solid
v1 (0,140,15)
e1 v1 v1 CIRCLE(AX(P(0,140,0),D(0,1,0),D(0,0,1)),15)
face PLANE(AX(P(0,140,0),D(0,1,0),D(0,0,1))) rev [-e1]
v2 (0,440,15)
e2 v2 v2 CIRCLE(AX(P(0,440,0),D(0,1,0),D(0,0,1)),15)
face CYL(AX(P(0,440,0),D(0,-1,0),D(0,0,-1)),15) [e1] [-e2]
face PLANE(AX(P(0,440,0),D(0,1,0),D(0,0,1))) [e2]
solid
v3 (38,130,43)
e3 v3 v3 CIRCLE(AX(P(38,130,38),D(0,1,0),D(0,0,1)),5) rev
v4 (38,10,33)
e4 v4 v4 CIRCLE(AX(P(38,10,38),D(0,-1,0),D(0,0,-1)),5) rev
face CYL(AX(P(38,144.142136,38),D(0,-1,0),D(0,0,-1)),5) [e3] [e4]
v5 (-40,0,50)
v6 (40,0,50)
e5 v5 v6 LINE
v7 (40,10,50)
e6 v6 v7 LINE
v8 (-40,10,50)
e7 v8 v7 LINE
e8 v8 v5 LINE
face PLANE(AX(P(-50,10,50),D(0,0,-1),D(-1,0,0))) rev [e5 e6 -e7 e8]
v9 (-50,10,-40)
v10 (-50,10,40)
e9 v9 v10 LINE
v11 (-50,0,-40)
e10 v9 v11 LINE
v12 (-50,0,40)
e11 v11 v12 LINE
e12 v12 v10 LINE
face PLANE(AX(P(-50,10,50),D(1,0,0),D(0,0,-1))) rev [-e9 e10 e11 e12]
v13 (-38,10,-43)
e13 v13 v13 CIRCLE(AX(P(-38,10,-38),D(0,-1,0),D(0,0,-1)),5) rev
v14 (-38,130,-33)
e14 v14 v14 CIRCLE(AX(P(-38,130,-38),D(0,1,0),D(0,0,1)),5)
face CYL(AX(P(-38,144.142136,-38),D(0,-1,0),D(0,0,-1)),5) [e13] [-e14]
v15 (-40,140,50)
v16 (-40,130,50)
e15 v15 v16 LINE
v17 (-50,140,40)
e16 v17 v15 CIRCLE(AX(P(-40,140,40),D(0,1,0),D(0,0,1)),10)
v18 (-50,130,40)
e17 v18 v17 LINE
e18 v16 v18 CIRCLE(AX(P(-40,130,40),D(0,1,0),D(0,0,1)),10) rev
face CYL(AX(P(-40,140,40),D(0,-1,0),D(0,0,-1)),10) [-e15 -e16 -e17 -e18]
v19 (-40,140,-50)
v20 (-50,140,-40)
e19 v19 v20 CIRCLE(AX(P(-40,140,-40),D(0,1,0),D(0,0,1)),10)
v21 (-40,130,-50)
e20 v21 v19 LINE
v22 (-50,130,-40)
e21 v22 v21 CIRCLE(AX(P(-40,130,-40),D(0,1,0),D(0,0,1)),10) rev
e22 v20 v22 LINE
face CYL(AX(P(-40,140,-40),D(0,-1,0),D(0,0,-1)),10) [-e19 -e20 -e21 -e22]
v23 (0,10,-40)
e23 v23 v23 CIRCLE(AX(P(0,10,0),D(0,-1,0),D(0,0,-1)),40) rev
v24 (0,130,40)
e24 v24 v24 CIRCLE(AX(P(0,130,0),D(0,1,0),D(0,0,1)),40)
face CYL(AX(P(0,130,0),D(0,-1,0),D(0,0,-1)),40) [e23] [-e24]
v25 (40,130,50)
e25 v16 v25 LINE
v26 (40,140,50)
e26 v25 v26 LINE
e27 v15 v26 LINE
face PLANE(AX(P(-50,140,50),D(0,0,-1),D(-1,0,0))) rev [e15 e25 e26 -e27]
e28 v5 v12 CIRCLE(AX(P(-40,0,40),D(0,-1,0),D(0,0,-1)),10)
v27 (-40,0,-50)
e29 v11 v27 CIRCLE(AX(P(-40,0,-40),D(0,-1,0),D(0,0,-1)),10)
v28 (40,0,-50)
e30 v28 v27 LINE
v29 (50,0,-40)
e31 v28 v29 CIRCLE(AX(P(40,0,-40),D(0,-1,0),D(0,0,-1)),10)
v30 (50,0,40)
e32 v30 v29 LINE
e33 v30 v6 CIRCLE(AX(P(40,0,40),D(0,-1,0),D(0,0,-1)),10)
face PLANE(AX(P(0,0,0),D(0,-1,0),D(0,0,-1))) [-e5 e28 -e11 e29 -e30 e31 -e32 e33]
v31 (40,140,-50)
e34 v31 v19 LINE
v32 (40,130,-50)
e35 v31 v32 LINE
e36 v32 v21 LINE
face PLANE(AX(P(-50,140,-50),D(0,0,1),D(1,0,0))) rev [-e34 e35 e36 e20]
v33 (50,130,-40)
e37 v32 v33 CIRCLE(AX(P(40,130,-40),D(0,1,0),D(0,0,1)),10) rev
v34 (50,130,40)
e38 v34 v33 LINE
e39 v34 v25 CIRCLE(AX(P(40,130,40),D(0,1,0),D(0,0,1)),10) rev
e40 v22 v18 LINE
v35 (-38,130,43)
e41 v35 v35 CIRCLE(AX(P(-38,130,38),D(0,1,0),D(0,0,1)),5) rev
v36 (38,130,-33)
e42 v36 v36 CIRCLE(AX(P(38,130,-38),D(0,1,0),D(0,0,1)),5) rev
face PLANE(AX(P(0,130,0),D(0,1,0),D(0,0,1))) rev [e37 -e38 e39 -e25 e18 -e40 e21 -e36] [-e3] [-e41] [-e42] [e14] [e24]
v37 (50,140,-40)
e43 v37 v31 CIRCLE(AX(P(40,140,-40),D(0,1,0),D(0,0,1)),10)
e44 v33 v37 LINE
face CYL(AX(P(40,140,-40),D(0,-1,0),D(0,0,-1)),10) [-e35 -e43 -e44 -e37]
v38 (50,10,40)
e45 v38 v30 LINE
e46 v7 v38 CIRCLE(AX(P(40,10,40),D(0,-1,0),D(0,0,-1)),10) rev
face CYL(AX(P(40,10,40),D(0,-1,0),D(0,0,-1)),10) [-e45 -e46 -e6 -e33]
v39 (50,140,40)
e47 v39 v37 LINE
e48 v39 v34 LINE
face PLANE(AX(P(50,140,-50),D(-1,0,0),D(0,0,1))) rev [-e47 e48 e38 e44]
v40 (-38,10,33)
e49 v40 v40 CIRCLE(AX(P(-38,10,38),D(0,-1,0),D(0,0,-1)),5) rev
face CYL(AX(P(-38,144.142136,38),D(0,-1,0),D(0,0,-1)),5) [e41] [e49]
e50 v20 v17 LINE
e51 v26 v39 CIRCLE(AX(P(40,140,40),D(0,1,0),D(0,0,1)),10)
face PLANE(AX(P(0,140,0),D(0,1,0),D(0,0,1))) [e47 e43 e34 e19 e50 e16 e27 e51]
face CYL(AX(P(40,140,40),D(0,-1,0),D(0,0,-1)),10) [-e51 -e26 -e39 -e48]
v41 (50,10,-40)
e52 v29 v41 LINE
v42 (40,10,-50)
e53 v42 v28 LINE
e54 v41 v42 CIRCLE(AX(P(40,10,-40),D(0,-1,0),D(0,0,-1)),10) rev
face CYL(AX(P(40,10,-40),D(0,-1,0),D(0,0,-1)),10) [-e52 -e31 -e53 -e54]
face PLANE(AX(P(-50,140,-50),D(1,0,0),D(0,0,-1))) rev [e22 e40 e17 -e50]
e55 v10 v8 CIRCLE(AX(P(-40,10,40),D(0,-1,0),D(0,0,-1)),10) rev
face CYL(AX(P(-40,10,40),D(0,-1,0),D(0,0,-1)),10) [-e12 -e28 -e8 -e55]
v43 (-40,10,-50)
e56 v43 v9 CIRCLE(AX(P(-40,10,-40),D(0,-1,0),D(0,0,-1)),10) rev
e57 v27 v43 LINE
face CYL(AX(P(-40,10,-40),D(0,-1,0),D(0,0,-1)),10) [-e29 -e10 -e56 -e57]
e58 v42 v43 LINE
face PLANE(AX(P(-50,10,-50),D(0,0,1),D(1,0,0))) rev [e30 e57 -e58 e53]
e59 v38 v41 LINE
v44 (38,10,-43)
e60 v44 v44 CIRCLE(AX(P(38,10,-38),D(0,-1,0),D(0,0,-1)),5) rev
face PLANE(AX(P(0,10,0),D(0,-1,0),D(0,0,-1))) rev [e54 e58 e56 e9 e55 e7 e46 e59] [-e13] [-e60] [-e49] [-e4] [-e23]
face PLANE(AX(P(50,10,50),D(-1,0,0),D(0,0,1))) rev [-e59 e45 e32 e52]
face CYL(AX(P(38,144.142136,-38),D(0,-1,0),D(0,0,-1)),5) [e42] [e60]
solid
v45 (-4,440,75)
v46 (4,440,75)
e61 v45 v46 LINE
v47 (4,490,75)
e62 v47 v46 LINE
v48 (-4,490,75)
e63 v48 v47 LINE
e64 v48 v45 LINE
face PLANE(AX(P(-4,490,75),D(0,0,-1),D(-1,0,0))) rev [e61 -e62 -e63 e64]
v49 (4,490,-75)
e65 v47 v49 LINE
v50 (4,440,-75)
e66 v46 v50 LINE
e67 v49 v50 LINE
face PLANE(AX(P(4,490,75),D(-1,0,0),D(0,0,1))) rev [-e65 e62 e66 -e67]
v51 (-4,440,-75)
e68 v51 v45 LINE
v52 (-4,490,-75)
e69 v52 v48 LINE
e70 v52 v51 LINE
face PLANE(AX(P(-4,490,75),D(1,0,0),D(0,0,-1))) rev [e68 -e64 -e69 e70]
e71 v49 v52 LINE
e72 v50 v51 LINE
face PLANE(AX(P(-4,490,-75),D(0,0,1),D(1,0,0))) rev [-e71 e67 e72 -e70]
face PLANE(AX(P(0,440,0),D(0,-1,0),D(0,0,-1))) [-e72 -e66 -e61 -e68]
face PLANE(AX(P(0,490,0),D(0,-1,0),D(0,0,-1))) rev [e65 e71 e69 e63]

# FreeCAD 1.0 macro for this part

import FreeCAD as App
import Part
import Sketcher
from FreeCAD import Vector
Q = App.Units.Quantity


def edges_at(feature, points):
    """Names of the edges that pass closest to the given points."""
    edges = feature.Shape.Edges
    near = lambda p: min(range(len(edges)), key=lambda i: edges[i].distToShape(Part.Vertex(*p))[0])
    return sorted({f"Edge{near(p) + 1}" for p in points})


def add_polygon(sketch, points):
    """Adds a closed chain of lines whose ends are joined by coincident constraints."""
    first, n = sketch.GeometryCount, len(points)
    for a, b in zip(points, points[1:] + points[:1]):
        sketch.addGeometry(Part.LineSegment(App.Vector(*a, 0), App.Vector(*b, 0)), False)
    for i in range(n):
        sketch.addConstraint(Sketcher.Constraint("Coincident", first + i, 2, first + (i + 1) % n, 1))

doc = App.newDocument("Part")
body = doc.addObject("PartDesign::Body", "Body")

sketch1 = body.newObject("Sketcher::SketchObject", "Sketch")
sketch1.AttachmentSupport = (doc.getObject("XZ_Plane"), [""])
sketch1.MapMode = "FlatFace"
add_polygon(sketch1, [(-50, -50), (-50, 50), (50, 50), (50, -50)])
sketch1.addConstraint(Sketcher.Constraint("Vertical", 0))
sketch1.addConstraint(Sketcher.Constraint("Horizontal", 1))
sketch1.addConstraint(Sketcher.Constraint("Vertical", 2))
sketch1.addConstraint(Sketcher.Constraint("Horizontal", 3))
sketch1.addConstraint(Sketcher.Constraint("Symmetric", 0, 2, 2, 2, -1, 1))
sketch1.addConstraint(Sketcher.Constraint("Equal", 3, 0))
sketch1.addConstraint(Sketcher.Constraint("DistanceX", 1, 1, 1, 2, Q("100 mm")))
pad1 = body.newObject("PartDesign::Pad", "Pad")
pad1.Profile = sketch1
pad1.Length = 10
pad1.Reversed = True
body2 = doc.addObject("PartDesign::Body", "Body001")

sketch2 = body2.newObject("Sketcher::SketchObject", "Sketch001")
sketch2.AttachmentSupport = (doc.getObject("XZ_Plane001"), [""])
sketch2.MapMode = "FlatFace"
sketch2.AttachmentOffset = App.Placement(Vector(0, 0, -10), App.Rotation())
sketch2.addGeometry(Part.Circle(Vector(0, 0, 0), Vector(0, 0, 1), 40), False)
sketch2.addConstraint(Sketcher.Constraint("Coincident", 0, 3, -1, 1))
sketch2.addConstraint(Sketcher.Constraint("Diameter", 0, Q("80 mm")))
pad2 = body2.newObject("PartDesign::Pad", "Pad001")
pad2.Profile = sketch2
pad2.Length = 120
pad2.Reversed = True
body3 = doc.addObject("PartDesign::Body", "Body002")

sketch3 = body3.newObject("Sketcher::SketchObject", "Sketch002")
sketch3.AttachmentSupport = (doc.getObject("XZ_Plane002"), [""])
sketch3.MapMode = "FlatFace"
sketch3.AttachmentOffset = App.Placement(Vector(0, 0, -130), App.Rotation())
add_polygon(sketch3, [(-50, -50), (-50, 50), (50, 50), (50, -50)])
sketch3.addConstraint(Sketcher.Constraint("Vertical", 0))
sketch3.addConstraint(Sketcher.Constraint("Horizontal", 1))
sketch3.addConstraint(Sketcher.Constraint("Vertical", 2))
sketch3.addConstraint(Sketcher.Constraint("Horizontal", 3))
sketch3.addConstraint(Sketcher.Constraint("Symmetric", 0, 2, 2, 2, -1, 1))
sketch3.addConstraint(Sketcher.Constraint("Equal", 3, 0))
sketch3.addConstraint(Sketcher.Constraint("DistanceX", 1, 1, 1, 2, Q("100 mm")))
pad3 = body3.newObject("PartDesign::Pad", "Pad002")
pad3.Profile = sketch3
pad3.Length = 10
pad3.Reversed = True
body4 = doc.addObject("PartDesign::Body", "Body003")

sketch4 = body4.newObject("Sketcher::SketchObject", "Sketch003")
sketch4.AttachmentSupport = (doc.getObject("XZ_Plane003"), [""])
sketch4.MapMode = "FlatFace"
sketch4.AttachmentOffset = App.Placement(Vector(0, 0, -140), App.Rotation())
sketch4.addGeometry(Part.Circle(Vector(0, 0, 0), Vector(0, 0, 1), 15), False)
sketch4.addConstraint(Sketcher.Constraint("Coincident", 0, 3, -1, 1))
sketch4.addConstraint(Sketcher.Constraint("Diameter", 0, Q("30 mm")))
pad4 = body4.newObject("PartDesign::Pad", "Pad003")
pad4.Profile = sketch4
pad4.Length = 300
pad4.Reversed = True
doc.recompute()

boolean = body.newObject("PartDesign::Boolean", "Boolean")
boolean.Type = "Fuse"
boolean.addObjects([body2])
doc.recompute()

boolean2 = body.newObject("PartDesign::Boolean", "Boolean001")
boolean2.Type = "Fuse"
boolean2.addObjects([body3])

sketch5 = body.newObject("Sketcher::SketchObject", "Sketch004")
sketch5.AttachmentSupport = (doc.getObject("XZ_Plane"), [""])
sketch5.MapMode = "FlatFace"
sketch5.AttachmentOffset = App.Placement(Vector(0, 0, -10), App.Rotation())
sketch5.addGeometry(Part.Circle(Vector(-38, -38, 0), Vector(0, 0, 1), 5), False)
sketch5.addGeometry(Part.Circle(Vector(38, -38, 0), Vector(0, 0, 1), 5), False)
sketch5.addGeometry(Part.Circle(Vector(38, 38, 0), Vector(0, 0, 1), 5), False)
sketch5.addGeometry(Part.Circle(Vector(-38, 38, 0), Vector(0, 0, 1), 5), False)
sketch5.addConstraint(Sketcher.Constraint("Equal", 0, 1))
sketch5.addConstraint(Sketcher.Constraint("Equal", 1, 2))
sketch5.addConstraint(Sketcher.Constraint("Equal", 2, 3))
sketch5.addConstraint(Sketcher.Constraint("Symmetric", 0, 3, 2, 3, -1, 1))
sketch5.addConstraint(Sketcher.Constraint("Symmetric", 1, 3, 3, 3, -1, 1))
sketch5.addConstraint(Sketcher.Constraint("Symmetric", 0, 3, 1, 3, -2))
sketch5.addConstraint(Sketcher.Constraint("Diameter", 0, Q("10 mm")))
sketch5.addConstraint(Sketcher.Constraint("DistanceX", 0, 3, -1, 1, Q("38 mm")))
sketch5.addConstraint(Sketcher.Constraint("DistanceY", 0, 3, -1, 1, Q("38 mm")))
pad5 = body.newObject("PartDesign::Pad", "Pad004")
pad5.Profile = sketch5
pad5.Length = 120
pad5.Reversed = True
doc.recompute()

fillet = body.newObject("PartDesign::Fillet", "Fillet")
fillet.Base = (pad5, edges_at(pad5, [
    (-50, 135, -50),
    (-50, 135, 50),
    (50, 135, 50),
    (50, 135, -50),
    (50, 5, 50),
    (-50, 5, 50),
    (-50, 5, -50),
    (50, 5, -50),
]))
fillet.Radius = 10
body5 = doc.addObject("PartDesign::Body", "Body004")

sketch6 = body5.newObject("Sketcher::SketchObject", "Sketch005")
sketch6.AttachmentSupport = (doc.getObject("XZ_Plane004"), [""])
sketch6.MapMode = "FlatFace"
sketch6.AttachmentOffset = App.Placement(Vector(0, 0, -440), App.Rotation())
add_polygon(sketch6, [(-4, -75), (-4, 75), (4, 75), (4, -75)])
sketch6.addConstraint(Sketcher.Constraint("Vertical", 0))
sketch6.addConstraint(Sketcher.Constraint("Horizontal", 1))
sketch6.addConstraint(Sketcher.Constraint("Vertical", 2))
sketch6.addConstraint(Sketcher.Constraint("Horizontal", 3))
sketch6.addConstraint(Sketcher.Constraint("Symmetric", 0, 2, 2, 2, -1, 1))
sketch6.addConstraint(Sketcher.Constraint("DistanceX", 1, 1, 1, 2, Q("8 mm")))
sketch6.addConstraint(Sketcher.Constraint("DistanceY", 0, 1, 0, 2, Q("150 mm")))
pad6 = body5.newObject("PartDesign::Pad", "Pad005")
pad6.Profile = sketch6
pad6.Length = 50
pad6.Reversed = True

doc.recompute()
